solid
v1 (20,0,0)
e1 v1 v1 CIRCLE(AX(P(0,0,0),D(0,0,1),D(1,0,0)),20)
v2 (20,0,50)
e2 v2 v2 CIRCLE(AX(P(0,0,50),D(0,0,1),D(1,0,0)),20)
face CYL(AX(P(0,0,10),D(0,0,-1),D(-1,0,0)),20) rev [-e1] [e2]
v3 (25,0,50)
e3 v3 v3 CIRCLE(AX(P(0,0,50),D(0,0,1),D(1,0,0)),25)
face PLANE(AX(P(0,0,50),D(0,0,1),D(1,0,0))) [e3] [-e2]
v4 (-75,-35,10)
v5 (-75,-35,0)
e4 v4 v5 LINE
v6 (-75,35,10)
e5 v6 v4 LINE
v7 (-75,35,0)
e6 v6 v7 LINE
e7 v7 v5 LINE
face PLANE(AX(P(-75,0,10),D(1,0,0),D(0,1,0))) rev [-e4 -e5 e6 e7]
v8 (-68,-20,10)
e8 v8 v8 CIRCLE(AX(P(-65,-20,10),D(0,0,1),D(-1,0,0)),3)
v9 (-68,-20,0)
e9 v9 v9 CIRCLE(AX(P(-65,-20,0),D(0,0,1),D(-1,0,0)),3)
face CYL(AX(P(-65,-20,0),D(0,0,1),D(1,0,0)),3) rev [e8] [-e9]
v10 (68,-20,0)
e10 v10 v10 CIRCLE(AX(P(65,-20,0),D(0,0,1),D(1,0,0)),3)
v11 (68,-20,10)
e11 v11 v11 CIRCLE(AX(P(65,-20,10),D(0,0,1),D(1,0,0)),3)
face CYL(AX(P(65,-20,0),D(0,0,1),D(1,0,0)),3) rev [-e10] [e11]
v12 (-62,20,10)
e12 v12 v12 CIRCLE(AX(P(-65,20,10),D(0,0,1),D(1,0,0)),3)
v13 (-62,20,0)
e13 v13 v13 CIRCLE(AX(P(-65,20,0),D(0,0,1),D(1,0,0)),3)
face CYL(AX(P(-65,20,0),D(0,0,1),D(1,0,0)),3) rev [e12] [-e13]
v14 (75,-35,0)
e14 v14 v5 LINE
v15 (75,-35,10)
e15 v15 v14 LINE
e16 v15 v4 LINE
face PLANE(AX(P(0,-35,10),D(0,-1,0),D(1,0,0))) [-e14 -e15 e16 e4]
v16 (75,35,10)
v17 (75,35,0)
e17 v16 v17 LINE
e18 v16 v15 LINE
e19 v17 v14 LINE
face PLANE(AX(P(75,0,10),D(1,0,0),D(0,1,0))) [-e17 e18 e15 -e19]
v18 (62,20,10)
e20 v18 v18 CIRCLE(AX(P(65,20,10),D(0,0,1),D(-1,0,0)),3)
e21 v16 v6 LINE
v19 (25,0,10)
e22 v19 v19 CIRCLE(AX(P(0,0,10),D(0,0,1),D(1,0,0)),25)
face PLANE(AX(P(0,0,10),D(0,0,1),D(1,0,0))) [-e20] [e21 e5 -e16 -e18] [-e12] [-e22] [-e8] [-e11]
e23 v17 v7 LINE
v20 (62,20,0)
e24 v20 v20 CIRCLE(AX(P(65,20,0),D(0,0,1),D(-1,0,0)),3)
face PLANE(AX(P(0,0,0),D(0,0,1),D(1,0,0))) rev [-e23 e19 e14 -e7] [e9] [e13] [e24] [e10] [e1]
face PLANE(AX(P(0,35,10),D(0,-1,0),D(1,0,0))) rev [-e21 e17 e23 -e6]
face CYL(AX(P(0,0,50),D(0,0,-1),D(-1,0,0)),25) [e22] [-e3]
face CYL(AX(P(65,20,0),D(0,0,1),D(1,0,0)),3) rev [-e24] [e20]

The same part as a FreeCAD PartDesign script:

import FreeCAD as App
import Part
import Sketcher
from FreeCAD import Vector


def add_polygon(sketch, points):
    """Adds a closed chain of lines whose ends are joined by coincident constraints."""
    first, n = sketch.GeometryCount, len(points)
    for a, b in zip(points, points[1:] + points[:1]):
        sketch.addGeometry(Part.LineSegment(App.Vector(*a, 0), App.Vector(*b, 0)), False)
    for i in range(n):
        sketch.addConstraint(Sketcher.Constraint("Coincident", first + i, 2, first + (i + 1) % n, 1))

doc = App.newDocument("Part")
body = doc.addObject("PartDesign::Body", "Body")

sketch1 = body.newObject("Sketcher::SketchObject", "Sketch")
sketch1.AttachmentSupport = (doc.getObject("XY_Plane"), [""])
sketch1.MapMode = "FlatFace"
add_polygon(sketch1, [(-75, 35), (-75, -35), (75, -35), (75, 35)])
sketch1.addGeometry(Part.Circle(Vector(0, 0, 0), Vector(0, 0, 1), 20), False)
sketch1.addConstraint([
    Sketcher.Constraint("Vertical", 0),
    Sketcher.Constraint("Horizontal", 1),
    Sketcher.Constraint("Vertical", 2),
    Sketcher.Constraint("Horizontal", 3),
    Sketcher.Constraint("Coincident", 4, 3, -1, 1),
    Sketcher.Constraint("Symmetric", 0, 2, 2, 2, -1, 1),
    Sketcher.Constraint("Diameter", 4, 40.0),
    Sketcher.Constraint("DistanceX", 1, 1, 1, 2, 150.0),
    Sketcher.Constraint("DistanceY", 0, 2, 0, 1, 70.0),
])
pad1 = body.newObject("PartDesign::Pad", "Pad")
pad1.Profile = sketch1
pad1.Length = 10

sketch2 = body.newObject("Sketcher::SketchObject", "Sketch001")
sketch2.AttachmentSupport = (doc.getObject("XY_Plane"), [""])
sketch2.MapMode = "FlatFace"
sketch2.AttachmentOffset = App.Placement(Vector(0, 0, 10), App.Rotation())
sketch2.addGeometry([
    Part.Circle(Vector(0, 0, 0), Vector(0, 0, 1), 25),
    Part.Circle(Vector(0, 0, 0), Vector(0, 0, 1), 20),
], False)
sketch2.addConstraint([
    Sketcher.Constraint("Coincident", 0, 3, -1, 1),
    Sketcher.Constraint("Coincident", 1, 3, -1, 1),
    Sketcher.Constraint("Diameter", 0, 50.0),
    Sketcher.Constraint("Diameter", 1, 40.0),
])
pad2 = body.newObject("PartDesign::Pad", "Pad001")
pad2.Profile = sketch2
pad2.Length = 40

sketch3 = body.newObject("Sketcher::SketchObject", "Sketch002")
sketch3.AttachmentSupport = (doc.getObject("XY_Plane"), [""])
sketch3.MapMode = "FlatFace"
sketch3.AttachmentOffset = App.Placement(Vector(0, 0, 10), App.Rotation())
sketch3.addGeometry([
    Part.Circle(Vector(-65, 20, 0), Vector(0, 0, 1), 3),
    Part.Circle(Vector(-65, -20, 0), Vector(0, 0, 1), 3),
    Part.Circle(Vector(65, -20, 0), Vector(0, 0, 1), 3),
    Part.Circle(Vector(65, 20, 0), Vector(0, 0, 1), 3),
], False)
sketch3.addConstraint([
    Sketcher.Constraint("Equal", 0, 1),
    Sketcher.Constraint("Equal", 1, 2),
    Sketcher.Constraint("Equal", 2, 3),
    Sketcher.Constraint("Symmetric", 0, 3, 2, 3, -1, 1),
    Sketcher.Constraint("Symmetric", 1, 3, 3, 3, -1, 1),
    Sketcher.Constraint("Symmetric", 1, 3, 2, 3, -2),
    Sketcher.Constraint("Diameter", 0, 6.0),
    Sketcher.Constraint("DistanceX", 0, 3, -1, 1, 65.0),
    Sketcher.Constraint("DistanceY", -1, 1, 0, 3, 20.0),
])
pocket1 = body.newObject("PartDesign::Pocket", "Pocket")
pocket1.Profile = sketch3
pocket1.Type = "ThroughAll"

doc.recompute()
